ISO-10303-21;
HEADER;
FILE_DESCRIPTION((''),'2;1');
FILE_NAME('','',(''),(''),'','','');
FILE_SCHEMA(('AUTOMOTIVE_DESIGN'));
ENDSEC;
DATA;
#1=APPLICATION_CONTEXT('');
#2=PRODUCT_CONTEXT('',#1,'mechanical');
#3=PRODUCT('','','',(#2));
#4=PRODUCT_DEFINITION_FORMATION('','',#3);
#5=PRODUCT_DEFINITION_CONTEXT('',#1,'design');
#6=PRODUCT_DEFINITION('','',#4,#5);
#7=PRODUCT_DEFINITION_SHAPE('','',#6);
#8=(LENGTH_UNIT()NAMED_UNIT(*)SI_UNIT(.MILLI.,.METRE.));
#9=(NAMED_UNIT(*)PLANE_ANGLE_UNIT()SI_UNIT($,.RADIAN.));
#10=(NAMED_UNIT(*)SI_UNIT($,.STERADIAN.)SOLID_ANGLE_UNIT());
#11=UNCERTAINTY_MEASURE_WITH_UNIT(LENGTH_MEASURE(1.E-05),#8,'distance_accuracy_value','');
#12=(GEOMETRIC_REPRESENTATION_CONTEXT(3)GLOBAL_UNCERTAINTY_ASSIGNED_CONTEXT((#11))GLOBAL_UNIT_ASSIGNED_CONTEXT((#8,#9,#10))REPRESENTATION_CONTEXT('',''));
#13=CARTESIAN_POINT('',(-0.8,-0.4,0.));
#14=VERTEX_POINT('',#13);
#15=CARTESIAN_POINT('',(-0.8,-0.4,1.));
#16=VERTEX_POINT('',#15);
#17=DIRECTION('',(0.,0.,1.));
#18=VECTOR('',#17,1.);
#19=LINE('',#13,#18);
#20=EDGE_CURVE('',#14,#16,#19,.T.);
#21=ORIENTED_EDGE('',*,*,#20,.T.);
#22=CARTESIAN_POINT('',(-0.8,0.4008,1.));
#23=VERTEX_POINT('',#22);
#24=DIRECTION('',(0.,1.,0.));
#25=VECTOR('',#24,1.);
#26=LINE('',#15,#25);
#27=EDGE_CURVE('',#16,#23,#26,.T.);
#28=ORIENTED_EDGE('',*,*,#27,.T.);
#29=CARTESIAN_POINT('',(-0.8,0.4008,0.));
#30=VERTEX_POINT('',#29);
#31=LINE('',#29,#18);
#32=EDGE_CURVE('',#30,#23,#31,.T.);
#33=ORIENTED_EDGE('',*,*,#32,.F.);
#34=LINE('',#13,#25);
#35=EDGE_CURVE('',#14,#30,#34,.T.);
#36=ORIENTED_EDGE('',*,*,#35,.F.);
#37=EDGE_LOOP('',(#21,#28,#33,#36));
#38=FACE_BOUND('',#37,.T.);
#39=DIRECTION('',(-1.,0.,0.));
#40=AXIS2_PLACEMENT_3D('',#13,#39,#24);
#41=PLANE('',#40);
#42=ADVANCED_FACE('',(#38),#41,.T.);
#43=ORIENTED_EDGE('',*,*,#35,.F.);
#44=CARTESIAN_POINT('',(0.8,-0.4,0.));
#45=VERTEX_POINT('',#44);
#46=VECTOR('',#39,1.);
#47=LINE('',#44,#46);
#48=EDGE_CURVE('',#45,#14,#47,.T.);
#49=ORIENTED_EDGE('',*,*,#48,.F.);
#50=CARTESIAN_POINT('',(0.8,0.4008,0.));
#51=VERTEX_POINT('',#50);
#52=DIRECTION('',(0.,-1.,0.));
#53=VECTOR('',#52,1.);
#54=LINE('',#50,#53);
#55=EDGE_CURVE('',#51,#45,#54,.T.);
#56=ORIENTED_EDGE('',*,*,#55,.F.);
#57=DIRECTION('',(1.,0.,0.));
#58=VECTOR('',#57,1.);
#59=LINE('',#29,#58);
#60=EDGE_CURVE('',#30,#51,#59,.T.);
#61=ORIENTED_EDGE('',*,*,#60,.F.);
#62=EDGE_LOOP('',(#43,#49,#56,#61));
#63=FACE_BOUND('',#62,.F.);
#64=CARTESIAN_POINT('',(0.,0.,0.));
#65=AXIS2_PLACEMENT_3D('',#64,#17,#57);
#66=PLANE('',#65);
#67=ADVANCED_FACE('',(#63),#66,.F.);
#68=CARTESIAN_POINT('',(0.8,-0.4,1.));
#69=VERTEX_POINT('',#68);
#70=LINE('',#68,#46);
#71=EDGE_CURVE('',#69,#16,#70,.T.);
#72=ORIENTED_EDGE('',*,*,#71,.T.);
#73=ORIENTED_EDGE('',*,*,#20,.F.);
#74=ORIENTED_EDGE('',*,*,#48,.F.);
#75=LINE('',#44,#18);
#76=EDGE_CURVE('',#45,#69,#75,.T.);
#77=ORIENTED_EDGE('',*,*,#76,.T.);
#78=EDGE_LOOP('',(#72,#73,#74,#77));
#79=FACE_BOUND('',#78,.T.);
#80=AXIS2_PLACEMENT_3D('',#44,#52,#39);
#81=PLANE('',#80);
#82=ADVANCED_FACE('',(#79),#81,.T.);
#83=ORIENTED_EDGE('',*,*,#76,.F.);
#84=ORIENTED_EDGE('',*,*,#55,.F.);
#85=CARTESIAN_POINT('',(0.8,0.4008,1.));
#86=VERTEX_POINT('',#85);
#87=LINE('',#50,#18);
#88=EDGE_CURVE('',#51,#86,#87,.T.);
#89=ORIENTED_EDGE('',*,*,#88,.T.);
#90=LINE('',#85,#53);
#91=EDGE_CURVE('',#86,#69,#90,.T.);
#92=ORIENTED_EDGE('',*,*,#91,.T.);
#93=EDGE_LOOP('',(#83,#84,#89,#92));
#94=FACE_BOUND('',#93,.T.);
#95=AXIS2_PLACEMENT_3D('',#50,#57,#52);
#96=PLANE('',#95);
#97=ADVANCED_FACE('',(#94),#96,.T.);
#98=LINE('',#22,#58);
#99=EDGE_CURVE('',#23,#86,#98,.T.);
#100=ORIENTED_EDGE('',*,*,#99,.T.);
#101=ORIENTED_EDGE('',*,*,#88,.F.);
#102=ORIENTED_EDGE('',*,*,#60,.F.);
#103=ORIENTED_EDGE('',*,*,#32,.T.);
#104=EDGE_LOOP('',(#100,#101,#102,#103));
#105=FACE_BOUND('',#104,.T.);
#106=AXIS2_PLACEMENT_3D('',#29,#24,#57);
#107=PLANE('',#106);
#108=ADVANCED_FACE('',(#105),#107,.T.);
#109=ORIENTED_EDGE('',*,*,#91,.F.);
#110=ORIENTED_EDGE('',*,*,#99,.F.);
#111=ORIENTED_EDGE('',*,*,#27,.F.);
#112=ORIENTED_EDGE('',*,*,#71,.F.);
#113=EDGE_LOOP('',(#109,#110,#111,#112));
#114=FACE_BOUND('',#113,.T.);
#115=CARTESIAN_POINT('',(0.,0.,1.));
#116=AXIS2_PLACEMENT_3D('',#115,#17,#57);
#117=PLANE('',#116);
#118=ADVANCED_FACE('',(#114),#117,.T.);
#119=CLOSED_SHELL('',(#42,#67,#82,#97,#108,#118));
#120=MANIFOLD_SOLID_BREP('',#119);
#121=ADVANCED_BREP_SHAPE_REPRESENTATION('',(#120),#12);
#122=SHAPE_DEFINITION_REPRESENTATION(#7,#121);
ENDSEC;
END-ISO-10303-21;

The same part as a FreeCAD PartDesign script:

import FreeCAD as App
import Part
import Sketcher
from FreeCAD import Vector
Q = App.Units.Quantity

doc = App.newDocument("Part")
body = doc.addObject("PartDesign::Body", "Body")

# Sketch on XY plane
sketch1 = body.newObject("Sketcher::SketchObject", "Sketch")
sketch1.AttachmentSupport = (doc.getObject("XY_Plane"), [""])
sketch1.MapMode = "FlatFace"
sketch1.addGeometry(Part.LineSegment(Vector(0.8, 0.4008, 0), Vector(-0.8, 0.4008, 0)), False)
sketch1.addGeometry(Part.LineSegment(Vector(-0.8, 0.4008, 0), Vector(-0.8, -0.4, 0)), False)
sketch1.addGeometry(Part.LineSegment(Vector(-0.8, -0.4, 0), Vector(0.8, -0.4, 0)), False)
sketch1.addGeometry(Part.LineSegment(Vector(0.8, -0.4, 0), Vector(0.8, 0.4008, 0)), False)
sketch1.addConstraint(Sketcher.Constraint("Coincident", 0, 2, 1, 1))
sketch1.addConstraint(Sketcher.Constraint("Coincident", 1, 2, 2, 1))
sketch1.addConstraint(Sketcher.Constraint("Coincident", 2, 2, 3, 1))
sketch1.addConstraint(Sketcher.Constraint("Coincident", 3, 2, 0, 1))
sketch1.addConstraint(Sketcher.Constraint("Horizontal", 0))
sketch1.addConstraint(Sketcher.Constraint("Vertical", 1))
sketch1.addConstraint(Sketcher.Constraint("Horizontal", 2))
sketch1.addConstraint(Sketcher.Constraint("Vertical", 3))
sketch1.addConstraint(Sketcher.Constraint("DistanceX", 0, 2, 0, 1, Q("1.6 mm")))
sketch1.addConstraint(Sketcher.Constraint("DistanceX", 0, 2, -1, 1, Q("0.8 mm")))
sketch1.addConstraint(Sketcher.Constraint("DistanceY", 1, 2, -1, 1, Q("0.4 mm")))
sketch1.addConstraint(Sketcher.Constraint("DistanceY", 1, 2, 1, 1, Q("0.8008 mm")))
pad1 = body.newObject("PartDesign::Pad", "Pad")
pad1.Profile = sketch1
pad1.Length = 1

doc.recompute()
